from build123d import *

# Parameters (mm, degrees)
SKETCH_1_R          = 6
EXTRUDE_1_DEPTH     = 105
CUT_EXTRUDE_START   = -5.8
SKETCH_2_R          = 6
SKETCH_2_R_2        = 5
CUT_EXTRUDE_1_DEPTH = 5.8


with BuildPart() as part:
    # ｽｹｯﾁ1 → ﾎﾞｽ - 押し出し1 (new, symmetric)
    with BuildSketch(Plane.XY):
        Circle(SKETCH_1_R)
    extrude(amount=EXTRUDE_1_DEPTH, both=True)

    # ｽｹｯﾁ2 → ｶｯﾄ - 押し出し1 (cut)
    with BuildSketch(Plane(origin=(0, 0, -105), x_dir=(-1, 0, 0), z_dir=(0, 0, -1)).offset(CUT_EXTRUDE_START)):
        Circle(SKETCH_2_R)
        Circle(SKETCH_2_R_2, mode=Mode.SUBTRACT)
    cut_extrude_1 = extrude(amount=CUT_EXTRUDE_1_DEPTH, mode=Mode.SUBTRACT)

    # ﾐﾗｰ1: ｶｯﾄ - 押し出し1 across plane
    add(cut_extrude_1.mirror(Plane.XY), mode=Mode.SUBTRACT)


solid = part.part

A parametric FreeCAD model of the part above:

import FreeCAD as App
import Part
import Sketcher
from FreeCAD import Vector
Q = App.Units.Quantity

doc = App.newDocument("Part")
params = doc.addObject("Spreadsheet::Sheet", "Params")
for row, (alias, value) in enumerate([
    ("sketch1_diameter", "12 mm"),
    ("pad1_length", "210 mm"),
    ("sketch2_diameter", "12 mm"),
    ("sketch2_diameter2", "10 mm"),
    ("pocket1_length", "5.8 mm"),
], start=1):
    params.set(f"A{row}", alias)
    params.set(f"B{row}", "=" + value)
    params.setAlias(f"B{row}", alias)

body = doc.addObject("PartDesign::Body", "Body")

sketch1 = body.newObject("Sketcher::SketchObject", "Sketch")
sketch1.AttachmentSupport = (doc.getObject("XY_Plane"), [""])
sketch1.MapMode = "FlatFace"
sketch1.addGeometry(Part.Circle(Vector(0, 0, 0), Vector(0, 0, 1), 6), False)
sketch1.addConstraint(Sketcher.Constraint("Coincident", 0, 3, -1, 1))
sketch1.addConstraint(Sketcher.Constraint("Diameter", 0, Q("12 mm")))
sketch1.setExpression("Constraints[1]", "Params.sketch1_diameter")
pad1 = body.newObject("PartDesign::Pad", "Pad")
pad1.Profile = sketch1
pad1.setExpression("Length", "Params.pad1_length")
pad1.Midplane = True

sketch2 = body.newObject("Sketcher::SketchObject", "Sketch001")
sketch2.AttachmentSupport = (doc.getObject("XY_Plane"), [""])
sketch2.MapMode = "FlatFace"
sketch2.AttachmentOffset = App.Placement(Vector(0, 0, -99.2), App.Rotation())
sketch2.addGeometry(Part.Circle(Vector(0, 0, 0), Vector(0, 0, 1), 6), False)
sketch2.addGeometry(Part.Circle(Vector(0, 0, 0), Vector(0, 0, 1), 5), False)
sketch2.addConstraint(Sketcher.Constraint("Coincident", 0, 3, -1, 1))
sketch2.addConstraint(Sketcher.Constraint("Coincident", 1, 3, -1, 1))
sketch2.addConstraint(Sketcher.Constraint("Diameter", 0, Q("12 mm")))
sketch2.addConstraint(Sketcher.Constraint("Diameter", 1, Q("10 mm")))
sketch2.setExpression("Constraints[2]", "Params.sketch2_diameter")
sketch2.setExpression("Constraints[3]", "Params.sketch2_diameter2")
pocket1 = body.newObject("PartDesign::Pocket", "Pocket")
pocket1.Profile = sketch2
pocket1.setExpression("Length", "Params.pocket1_length")
doc.recompute()

mirrored = body.newObject("PartDesign::Mirrored", "Mirrored")
mirrored.Originals = [pocket1]
mirrored.MirrorPlane = (doc.getObject("XY_Plane"), [""])
body.Tip = mirrored

doc.recompute()
